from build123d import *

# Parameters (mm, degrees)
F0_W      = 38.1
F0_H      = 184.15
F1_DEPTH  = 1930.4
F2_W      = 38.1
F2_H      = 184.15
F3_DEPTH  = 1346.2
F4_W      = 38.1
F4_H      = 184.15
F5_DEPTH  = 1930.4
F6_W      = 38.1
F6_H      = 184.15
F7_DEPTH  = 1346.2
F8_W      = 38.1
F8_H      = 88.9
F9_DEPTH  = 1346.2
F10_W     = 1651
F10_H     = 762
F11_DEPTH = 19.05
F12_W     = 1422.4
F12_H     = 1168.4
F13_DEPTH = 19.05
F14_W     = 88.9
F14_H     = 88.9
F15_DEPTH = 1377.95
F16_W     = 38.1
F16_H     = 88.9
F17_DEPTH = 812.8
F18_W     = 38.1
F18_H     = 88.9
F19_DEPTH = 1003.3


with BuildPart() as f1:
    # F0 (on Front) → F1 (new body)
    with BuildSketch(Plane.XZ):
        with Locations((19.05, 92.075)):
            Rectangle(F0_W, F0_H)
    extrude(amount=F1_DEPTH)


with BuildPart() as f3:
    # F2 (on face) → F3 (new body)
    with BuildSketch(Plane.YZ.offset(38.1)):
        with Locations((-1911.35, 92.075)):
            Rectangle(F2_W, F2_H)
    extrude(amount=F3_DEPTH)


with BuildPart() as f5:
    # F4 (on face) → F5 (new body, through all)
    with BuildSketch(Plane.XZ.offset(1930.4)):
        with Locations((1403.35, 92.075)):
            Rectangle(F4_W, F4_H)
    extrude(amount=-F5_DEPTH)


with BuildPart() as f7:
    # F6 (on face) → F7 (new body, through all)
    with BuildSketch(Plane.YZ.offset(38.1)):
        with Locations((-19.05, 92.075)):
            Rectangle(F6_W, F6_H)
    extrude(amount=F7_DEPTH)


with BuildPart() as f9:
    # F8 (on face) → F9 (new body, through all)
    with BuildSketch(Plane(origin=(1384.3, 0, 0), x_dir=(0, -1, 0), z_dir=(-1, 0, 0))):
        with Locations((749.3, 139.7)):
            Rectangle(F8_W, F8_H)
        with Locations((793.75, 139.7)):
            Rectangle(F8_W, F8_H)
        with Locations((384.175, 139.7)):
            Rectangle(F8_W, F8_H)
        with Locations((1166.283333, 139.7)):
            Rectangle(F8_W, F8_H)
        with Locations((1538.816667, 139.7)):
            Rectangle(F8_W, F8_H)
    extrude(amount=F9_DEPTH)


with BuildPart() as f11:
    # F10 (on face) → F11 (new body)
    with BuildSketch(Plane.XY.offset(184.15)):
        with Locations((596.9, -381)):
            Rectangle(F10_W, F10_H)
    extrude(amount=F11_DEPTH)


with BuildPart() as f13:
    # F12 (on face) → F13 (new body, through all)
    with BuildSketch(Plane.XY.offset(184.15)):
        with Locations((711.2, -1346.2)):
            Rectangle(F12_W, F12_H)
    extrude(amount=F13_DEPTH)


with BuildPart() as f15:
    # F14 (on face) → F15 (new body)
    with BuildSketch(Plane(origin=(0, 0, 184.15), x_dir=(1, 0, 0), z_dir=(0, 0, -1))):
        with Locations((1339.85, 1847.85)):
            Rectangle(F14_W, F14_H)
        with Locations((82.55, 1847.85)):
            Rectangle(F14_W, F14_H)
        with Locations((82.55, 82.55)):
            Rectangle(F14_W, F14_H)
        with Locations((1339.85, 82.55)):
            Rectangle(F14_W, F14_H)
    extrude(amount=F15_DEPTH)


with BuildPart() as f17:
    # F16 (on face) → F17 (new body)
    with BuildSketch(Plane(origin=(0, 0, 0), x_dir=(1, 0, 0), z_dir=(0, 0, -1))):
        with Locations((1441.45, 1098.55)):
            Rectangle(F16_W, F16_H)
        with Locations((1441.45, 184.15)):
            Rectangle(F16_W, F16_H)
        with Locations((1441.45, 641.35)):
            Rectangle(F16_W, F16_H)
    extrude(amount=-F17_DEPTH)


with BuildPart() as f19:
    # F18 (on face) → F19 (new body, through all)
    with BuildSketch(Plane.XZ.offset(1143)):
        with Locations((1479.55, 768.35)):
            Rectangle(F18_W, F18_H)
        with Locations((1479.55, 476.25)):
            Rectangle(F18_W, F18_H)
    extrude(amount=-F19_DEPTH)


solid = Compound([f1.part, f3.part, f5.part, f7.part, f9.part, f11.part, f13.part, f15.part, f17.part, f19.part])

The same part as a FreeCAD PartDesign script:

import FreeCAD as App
import Part
import Sketcher
Q = App.Units.Quantity


def add_polygon(sketch, points):
    """Adds a closed chain of lines whose ends are joined by coincident constraints."""
    first, n = sketch.GeometryCount, len(points)
    for a, b in zip(points, points[1:] + points[:1]):
        sketch.addGeometry(Part.LineSegment(App.Vector(*a, 0), App.Vector(*b, 0)), False)
    for i in range(n):
        sketch.addConstraint(Sketcher.Constraint("Coincident", first + i, 2, first + (i + 1) % n, 1))

doc = App.newDocument("Part")
body = doc.addObject("PartDesign::Body", "Body")

sketch1 = body.newObject("Sketcher::SketchObject", "Sketch")
sketch1.AttachmentSupport = (doc.getObject("XZ_Plane"), [""])
sketch1.MapMode = "FlatFace"
add_polygon(sketch1, [(0, 184.15), (0, 0), (38.1, 0), (38.1, 184.15)])
sketch1.addConstraint([
    Sketcher.Constraint("Vertical", 0),
    Sketcher.Constraint("Horizontal", 1),
    Sketcher.Constraint("Vertical", 2),
    Sketcher.Constraint("Horizontal", 3),
    Sketcher.Constraint("Coincident", 0, 2, -1, 1),
    Sketcher.Constraint("DistanceX", 1, 1, 1, 2, Q("1.5 in")),
    Sketcher.Constraint("DistanceY", 0, 2, 0, 1, Q("7.25 in")),
])
pad1 = body.newObject("PartDesign::Pad", "Pad")
pad1.Profile = sketch1
pad1.Length = Q("76 in")
body2 = doc.addObject("PartDesign::Body", "Body001")

sketch2 = body2.newObject("Sketcher::SketchObject", "Sketch001")
sketch2.AttachmentSupport = (doc.getObject("YZ_Plane001"), [""])
sketch2.MapMode = "FlatFace"
sketch2.AttachmentOffset = App.Placement(App.Vector(0, 0, 1.5 * 25.4), App.Rotation())
add_polygon(sketch2, [(-1930.4, 184.15), (-1930.4, 0), (-1892.3, 0), (-1892.3, 184.15)])
sketch2.addConstraint([
    Sketcher.Constraint("Vertical", 0),
    Sketcher.Constraint("Horizontal", 1),
    Sketcher.Constraint("Vertical", 2),
    Sketcher.Constraint("Horizontal", 3),
    Sketcher.Constraint("PointOnObject", 0, 2, -1),
    Sketcher.Constraint("DistanceX", 1, 1, 1, 2, Q("1.5 in")),
    Sketcher.Constraint("DistanceX", 0, 2, -1, 1, Q("76 in")),
    Sketcher.Constraint("DistanceY", 0, 2, 0, 1, Q("7.25 in")),
])
pad2 = body2.newObject("PartDesign::Pad", "Pad001")
pad2.Profile = sketch2
pad2.Length = Q("53 in")
body3 = doc.addObject("PartDesign::Body", "Body002")

sketch3 = body3.newObject("Sketcher::SketchObject", "Sketch002")
sketch3.AttachmentSupport = (doc.getObject("XZ_Plane002"), [""])
sketch3.MapMode = "FlatFace"
sketch3.AttachmentOffset = App.Placement(App.Vector(0, 0, 76 * 25.4), App.Rotation())
add_polygon(sketch3, [(1384.3, 184.15), (1384.3, 0), (1422.4, 0), (1422.4, 184.15)])
sketch3.addConstraint([
    Sketcher.Constraint("Vertical", 0),
    Sketcher.Constraint("Horizontal", 1),
    Sketcher.Constraint("Vertical", 2),
    Sketcher.Constraint("Horizontal", 3),
    Sketcher.Constraint("PointOnObject", 0, 2, -1),
    Sketcher.Constraint("DistanceX", 1, 1, 1, 2, Q("1.5 in")),
    Sketcher.Constraint("DistanceX", -1, 1, 1, 2, Q("56 in")),
    Sketcher.Constraint("DistanceY", 0, 2, 0, 1, Q("7.25 in")),
])
pad3 = body3.newObject("PartDesign::Pad", "Pad002")
pad3.Profile = sketch3
pad3.Length = Q("76 in")
pad3.Reversed = True
body4 = doc.addObject("PartDesign::Body", "Body003")

sketch4 = body4.newObject("Sketcher::SketchObject", "Sketch003")
sketch4.AttachmentSupport = (doc.getObject("YZ_Plane003"), [""])
sketch4.MapMode = "FlatFace"
sketch4.AttachmentOffset = App.Placement(App.Vector(0, 0, 1.5 * 25.4), App.Rotation())
add_polygon(sketch4, [(-38.1, 184.15), (-38.1, 0), (0, 0), (0, 184.15)])
sketch4.addConstraint([
    Sketcher.Constraint("Vertical", 0),
    Sketcher.Constraint("Horizontal", 1),
    Sketcher.Constraint("Vertical", 2),
    Sketcher.Constraint("Horizontal", 3),
    Sketcher.Constraint("Coincident", 1, 2, -1, 1),
    Sketcher.Constraint("DistanceX", 1, 1, 1, 2, Q("1.5 in")),
    Sketcher.Constraint("DistanceY", 0, 2, 0, 1, Q("7.25 in")),
])
pad4 = body4.newObject("PartDesign::Pad", "Pad003")
pad4.Profile = sketch4
pad4.Length = Q("53 in")
body5 = doc.addObject("PartDesign::Body", "Body004")
body5.AllowCompound = True

sketch5 = body5.newObject("Sketcher::SketchObject", "Sketch004")
sketch5.AttachmentSupport = (doc.getObject("YZ_Plane004"), [""])
sketch5.MapMode = "FlatFace"
sketch5.AttachmentOffset = App.Placement(App.Vector(0, 0, 54.5 * 25.4), App.Rotation())
add_polygon(sketch5, [(-730.25, 184.15), (-730.25, 95.25), (-768.35, 95.25), (-768.35, 184.15)])
add_polygon(sketch5, [(-774.7, 184.15), (-774.7, 95.25), (-812.8, 95.25), (-812.8, 184.15)])
add_polygon(sketch5, [(-365.125, 184.15), (-365.125, 95.25), (-403.225, 95.25), (-403.225, 184.15)])
add_polygon(sketch5, [(-1147.233333, 184.15), (-1147.233333, 95.25), (-1185.333333, 95.25), (-1185.333333, 184.15)])
add_polygon(sketch5, [(-1519.766667, 184.15), (-1519.766667, 95.25), (-1557.866667, 95.25), (-1557.866667, 184.15)])
sketch5.addConstraint([
    Sketcher.Constraint("Vertical", 0),
    Sketcher.Constraint("Horizontal", 1),
    Sketcher.Constraint("Vertical", 2),
    Sketcher.Constraint("Horizontal", 3),
    Sketcher.Constraint("Vertical", 4),
    Sketcher.Constraint("Horizontal", 5),
    Sketcher.Constraint("Vertical", 6),
    Sketcher.Constraint("Horizontal", 7),
    Sketcher.Constraint("Vertical", 8),
    Sketcher.Constraint("Horizontal", 9),
    Sketcher.Constraint("Vertical", 10),
    Sketcher.Constraint("Horizontal", 11),
    Sketcher.Constraint("Vertical", 12),
    Sketcher.Constraint("Horizontal", 13),
    Sketcher.Constraint("Vertical", 14),
    Sketcher.Constraint("Horizontal", 15),
    Sketcher.Constraint("Vertical", 16),
    Sketcher.Constraint("Horizontal", 17),
    Sketcher.Constraint("Vertical", 18),
    Sketcher.Constraint("Horizontal", 19),
    Sketcher.Constraint("Horizontal", 1, 2, 4, 2),
    Sketcher.Constraint("Horizontal", 3, 2, 6, 2),
    Sketcher.Constraint("Horizontal", 5, 2, 8, 2),
    Sketcher.Constraint("Horizontal", 7, 2, 10, 2),
    Sketcher.Constraint("Horizontal", 9, 2, 12, 2),
    Sketcher.Constraint("Horizontal", 11, 2, 14, 2),
    Sketcher.Constraint("Horizontal", 13, 2, 16, 2),
    Sketcher.Constraint("Horizontal", 15, 2, 18, 2),
    Sketcher.Constraint("Equal", 3, 5),
    Sketcher.Constraint("Equal", 7, 9),
    Sketcher.Constraint("Equal", 11, 13),
    Sketcher.Constraint("Equal", 15, 17),
    Sketcher.Constraint("DistanceX", 1, 2, 1, 1, Q("1.5 in")),
    Sketcher.Constraint("DistanceY", 0, 2, 0, 1, Q("3.5 in")),
    Sketcher.Constraint("DistanceX", 5, 2, -1, 1, Q("32 in")),
    Sketcher.Constraint("DistanceX", 0, 2, -1, 1, Q("28.75 in")),
    Sketcher.Constraint("DistanceY", -1, 1, 0, 2, Q("3.75 in")),
    Sketcher.Constraint("DistanceX", 8, 2, -1, 1, Q("14.375 in")),
    Sketcher.Constraint("DistanceX", 12, 2, -1, 1, Q("1147.233333 mm")),
    Sketcher.Constraint("DistanceX", 16, 2, -1, 1, Q("1519.766667 mm")),
])
pad5 = body5.newObject("PartDesign::Pad", "Pad004")
pad5.Profile = sketch5
pad5.Length = Q("53 in")
pad5.Reversed = True
body6 = doc.addObject("PartDesign::Body", "Body005")

sketch6 = body6.newObject("Sketcher::SketchObject", "Sketch005")
sketch6.AttachmentSupport = (doc.getObject("XY_Plane005"), [""])
sketch6.MapMode = "FlatFace"
sketch6.AttachmentOffset = App.Placement(App.Vector(0, 0, 7.25 * 25.4), App.Rotation())
add_polygon(sketch6, [(-228.6, 0), (-228.6, -762), (1422.4, -762), (1422.4, 0)])
sketch6.addConstraint([
    Sketcher.Constraint("Vertical", 0),
    Sketcher.Constraint("Horizontal", 1),
    Sketcher.Constraint("Vertical", 2),
    Sketcher.Constraint("Horizontal", 3),
    Sketcher.Constraint("PointOnObject", 2, 2, -1),
    Sketcher.Constraint("DistanceX", 1, 1, 1, 2, Q("65 in")),
    Sketcher.Constraint("DistanceY", 0, 2, 0, 1, Q("30 in")),
    Sketcher.Constraint("DistanceX", 0, 2, -1, 1, Q("9 in")),
])
pad6 = body6.newObject("PartDesign::Pad", "Pad005")
pad6.Profile = sketch6
pad6.Length = Q("0.75 in")
body7 = doc.addObject("PartDesign::Body", "Body006")

sketch7 = body7.newObject("Sketcher::SketchObject", "Sketch006")
sketch7.AttachmentSupport = (doc.getObject("XY_Plane006"), [""])
sketch7.MapMode = "FlatFace"
sketch7.AttachmentOffset = App.Placement(App.Vector(0, 0, 7.25 * 25.4), App.Rotation())
add_polygon(sketch7, [(0, -762), (0, -1930.4), (1422.4, -1930.4), (1422.4, -762)])
sketch7.addConstraint([
    Sketcher.Constraint("Vertical", 0),
    Sketcher.Constraint("Horizontal", 1),
    Sketcher.Constraint("Vertical", 2),
    Sketcher.Constraint("Horizontal", 3),
    Sketcher.Constraint("PointOnObject", 0, 2, -2),
    Sketcher.Constraint("DistanceX", 1, 1, 1, 2, Q("56 in")),
    Sketcher.Constraint("DistanceY", 0, 2, 0, 1, Q("46 in")),
    Sketcher.Constraint("DistanceY", 0, 2, -1, 1, Q("76 in")),
])
pad7 = body7.newObject("PartDesign::Pad", "Pad006")
pad7.Profile = sketch7
pad7.Length = Q("0.75 in")
body8 = doc.addObject("PartDesign::Body", "Body007")
body8.AllowCompound = True

sketch8 = body8.newObject("Sketcher::SketchObject", "Sketch007")
sketch8.AttachmentSupport = (doc.getObject("XY_Plane007"), [""])
sketch8.MapMode = "FlatFace"
sketch8.AttachmentOffset = App.Placement(App.Vector(0, 0, 7.25 * 25.4), App.Rotation())
add_polygon(sketch8, [(1295.4, -1892.3), (1295.4, -1803.4), (1384.3, -1803.4), (1384.3, -1892.3)])
add_polygon(sketch8, [(38.1, -1892.3), (38.1, -1803.4), (127, -1803.4), (127, -1892.3)])
add_polygon(sketch8, [(38.1, -127), (38.1, -38.1), (127, -38.1), (127, -127)])
add_polygon(sketch8, [(1295.4, -127), (1295.4, -38.1), (1384.3, -38.1), (1384.3, -127)])
sketch8.addConstraint([
    Sketcher.Constraint("Vertical", 0),
    Sketcher.Constraint("Horizontal", 1),
    Sketcher.Constraint("Vertical", 2),
    Sketcher.Constraint("Horizontal", 3),
    Sketcher.Constraint("Vertical", 4),
    Sketcher.Constraint("Horizontal", 5),
    Sketcher.Constraint("Vertical", 6),
    Sketcher.Constraint("Horizontal", 7),
    Sketcher.Constraint("Vertical", 8),
    Sketcher.Constraint("Horizontal", 9),
    Sketcher.Constraint("Vertical", 10),
    Sketcher.Constraint("Horizontal", 11),
    Sketcher.Constraint("Vertical", 12),
    Sketcher.Constraint("Horizontal", 13),
    Sketcher.Constraint("Vertical", 14),
    Sketcher.Constraint("Horizontal", 15),
    Sketcher.Constraint("Horizontal", 1, 2, 4, 2),
    Sketcher.Constraint("Horizontal", 3, 2, 6, 2),
    Sketcher.Constraint("Horizontal", 9, 2, 12, 2),
    Sketcher.Constraint("Horizontal", 11, 2, 14, 2),
    Sketcher.Constraint("Vertical", 7, 2, 8, 2),
    Sketcher.Constraint("Vertical", 6, 2, 9, 2),
    Sketcher.Constraint("Vertical", 3, 2, 12, 2),
    Sketcher.Constraint("Vertical", 2, 2, 13, 2),
    Sketcher.Constraint("Equal", 3, 5),
    Sketcher.Constraint("Equal", 15, 0),
    Sketcher.Constraint("Equal", 6, 8),
    Sketcher.Constraint("DistanceX", 1, 1, 1, 2, Q("3.5 in")),
    Sketcher.Constraint("DistanceX", -1, 1, 0, 2, Q("51 in")),
    Sketcher.Constraint("DistanceY", 0, 2, -1, 1, Q("71 in")),
    Sketcher.Constraint("DistanceX", -1, 1, 5, 2, Q("5 in")),
    Sketcher.Constraint("DistanceY", 10, 2, -1, 1, Q("5 in")),
])
pad8 = body8.newObject("PartDesign::Pad", "Pad007")
pad8.Profile = sketch8
pad8.Length = Q("54.25 in")
pad8.Reversed = True
body9 = doc.addObject("PartDesign::Body", "Body008")
body9.AllowCompound = True

sketch9 = body9.newObject("Sketcher::SketchObject", "Sketch008")
sketch9.AttachmentSupport = (doc.getObject("XY_Plane008"), [""])
sketch9.MapMode = "FlatFace"
add_polygon(sketch9, [(1422.4, -1143), (1422.4, -1054.1), (1460.5, -1054.1), (1460.5, -1143)])
add_polygon(sketch9, [(1422.4, -228.6), (1422.4, -139.7), (1460.5, -139.7), (1460.5, -228.6)])
add_polygon(sketch9, [(1422.4, -685.8), (1422.4, -596.9), (1460.5, -596.9), (1460.5, -685.8)])
sketch9.addConstraint([
    Sketcher.Constraint("Vertical", 0),
    Sketcher.Constraint("Horizontal", 1),
    Sketcher.Constraint("Vertical", 2),
    Sketcher.Constraint("Horizontal", 3),
    Sketcher.Constraint("Vertical", 4),
    Sketcher.Constraint("Horizontal", 5),
    Sketcher.Constraint("Vertical", 6),
    Sketcher.Constraint("Horizontal", 7),
    Sketcher.Constraint("Vertical", 8),
    Sketcher.Constraint("Horizontal", 9),
    Sketcher.Constraint("Vertical", 10),
    Sketcher.Constraint("Horizontal", 11),
    Sketcher.Constraint("Vertical", 3, 2, 4, 2),
    Sketcher.Constraint("Vertical", 2, 2, 5, 2),
    Sketcher.Constraint("Vertical", 7, 2, 8, 2),
    Sketcher.Constraint("Vertical", 6, 2, 9, 2),
    Sketcher.Constraint("Equal", 2, 4),
    Sketcher.Constraint("Equal", 6, 8),
    Sketcher.Constraint("DistanceX", 1, 1, 1, 2, Q("1.5 in")),
    Sketcher.Constraint("DistanceY", 0, 1, 0, 2, Q("3.5 in")),
    Sketcher.Constraint("DistanceX", -1, 1, 0, 2, Q("56 in")),
    Sketcher.Constraint("DistanceY", 2, 2, -1, 1, Q("45 in")),
    Sketcher.Constraint("DistanceY", 6, 2, -1, 1, Q("9 in")),
    Sketcher.Constraint("DistanceY", 10, 2, -1, 1, Q("27 in")),
])
pad9 = body9.newObject("PartDesign::Pad", "Pad008")
pad9.Profile = sketch9
pad9.Length = Q("32 in")
body10 = doc.addObject("PartDesign::Body", "Body009")
body10.AllowCompound = True

sketch10 = body10.newObject("Sketcher::SketchObject", "Sketch009")
sketch10.AttachmentSupport = (doc.getObject("XZ_Plane009"), [""])
sketch10.MapMode = "FlatFace"
sketch10.AttachmentOffset = App.Placement(App.Vector(0, 0, 45 * 25.4), App.Rotation())
add_polygon(sketch10, [(1460.5, 812.8), (1460.5, 723.9), (1498.6, 723.9), (1498.6, 812.8)])
add_polygon(sketch10, [(1460.5, 520.7), (1460.5, 431.8), (1498.6, 431.8), (1498.6, 520.7)])
sketch10.addConstraint([
    Sketcher.Constraint("Vertical", 0),
    Sketcher.Constraint("Horizontal", 1),
    Sketcher.Constraint("Vertical", 2),
    Sketcher.Constraint("Horizontal", 3),
    Sketcher.Constraint("Vertical", 4),
    Sketcher.Constraint("Horizontal", 5),
    Sketcher.Constraint("Vertical", 6),
    Sketcher.Constraint("Horizontal", 7),
    Sketcher.Constraint("Vertical", 3, 2, 4, 2),
    Sketcher.Constraint("Vertical", 2, 2, 5, 2),
    Sketcher.Constraint("Equal", 2, 4),
    Sketcher.Constraint("DistanceX", 1, 1, 1, 2, Q("1.5 in")),
    Sketcher.Constraint("DistanceY", 0, 2, 0, 1, Q("3.5 in")),
    Sketcher.Constraint("DistanceX", -1, 1, 1, 2, Q("59 in")),
    Sketcher.Constraint("DistanceY", -1, 1, 2, 2, Q("32 in")),
    Sketcher.Constraint("DistanceY", -1, 1, 4, 2, Q("17 in")),
])
pad10 = body10.newObject("PartDesign::Pad", "Pad009")
pad10.Profile = sketch10
pad10.Length = Q("39.5 in")
pad10.Reversed = True

doc.recompute()
